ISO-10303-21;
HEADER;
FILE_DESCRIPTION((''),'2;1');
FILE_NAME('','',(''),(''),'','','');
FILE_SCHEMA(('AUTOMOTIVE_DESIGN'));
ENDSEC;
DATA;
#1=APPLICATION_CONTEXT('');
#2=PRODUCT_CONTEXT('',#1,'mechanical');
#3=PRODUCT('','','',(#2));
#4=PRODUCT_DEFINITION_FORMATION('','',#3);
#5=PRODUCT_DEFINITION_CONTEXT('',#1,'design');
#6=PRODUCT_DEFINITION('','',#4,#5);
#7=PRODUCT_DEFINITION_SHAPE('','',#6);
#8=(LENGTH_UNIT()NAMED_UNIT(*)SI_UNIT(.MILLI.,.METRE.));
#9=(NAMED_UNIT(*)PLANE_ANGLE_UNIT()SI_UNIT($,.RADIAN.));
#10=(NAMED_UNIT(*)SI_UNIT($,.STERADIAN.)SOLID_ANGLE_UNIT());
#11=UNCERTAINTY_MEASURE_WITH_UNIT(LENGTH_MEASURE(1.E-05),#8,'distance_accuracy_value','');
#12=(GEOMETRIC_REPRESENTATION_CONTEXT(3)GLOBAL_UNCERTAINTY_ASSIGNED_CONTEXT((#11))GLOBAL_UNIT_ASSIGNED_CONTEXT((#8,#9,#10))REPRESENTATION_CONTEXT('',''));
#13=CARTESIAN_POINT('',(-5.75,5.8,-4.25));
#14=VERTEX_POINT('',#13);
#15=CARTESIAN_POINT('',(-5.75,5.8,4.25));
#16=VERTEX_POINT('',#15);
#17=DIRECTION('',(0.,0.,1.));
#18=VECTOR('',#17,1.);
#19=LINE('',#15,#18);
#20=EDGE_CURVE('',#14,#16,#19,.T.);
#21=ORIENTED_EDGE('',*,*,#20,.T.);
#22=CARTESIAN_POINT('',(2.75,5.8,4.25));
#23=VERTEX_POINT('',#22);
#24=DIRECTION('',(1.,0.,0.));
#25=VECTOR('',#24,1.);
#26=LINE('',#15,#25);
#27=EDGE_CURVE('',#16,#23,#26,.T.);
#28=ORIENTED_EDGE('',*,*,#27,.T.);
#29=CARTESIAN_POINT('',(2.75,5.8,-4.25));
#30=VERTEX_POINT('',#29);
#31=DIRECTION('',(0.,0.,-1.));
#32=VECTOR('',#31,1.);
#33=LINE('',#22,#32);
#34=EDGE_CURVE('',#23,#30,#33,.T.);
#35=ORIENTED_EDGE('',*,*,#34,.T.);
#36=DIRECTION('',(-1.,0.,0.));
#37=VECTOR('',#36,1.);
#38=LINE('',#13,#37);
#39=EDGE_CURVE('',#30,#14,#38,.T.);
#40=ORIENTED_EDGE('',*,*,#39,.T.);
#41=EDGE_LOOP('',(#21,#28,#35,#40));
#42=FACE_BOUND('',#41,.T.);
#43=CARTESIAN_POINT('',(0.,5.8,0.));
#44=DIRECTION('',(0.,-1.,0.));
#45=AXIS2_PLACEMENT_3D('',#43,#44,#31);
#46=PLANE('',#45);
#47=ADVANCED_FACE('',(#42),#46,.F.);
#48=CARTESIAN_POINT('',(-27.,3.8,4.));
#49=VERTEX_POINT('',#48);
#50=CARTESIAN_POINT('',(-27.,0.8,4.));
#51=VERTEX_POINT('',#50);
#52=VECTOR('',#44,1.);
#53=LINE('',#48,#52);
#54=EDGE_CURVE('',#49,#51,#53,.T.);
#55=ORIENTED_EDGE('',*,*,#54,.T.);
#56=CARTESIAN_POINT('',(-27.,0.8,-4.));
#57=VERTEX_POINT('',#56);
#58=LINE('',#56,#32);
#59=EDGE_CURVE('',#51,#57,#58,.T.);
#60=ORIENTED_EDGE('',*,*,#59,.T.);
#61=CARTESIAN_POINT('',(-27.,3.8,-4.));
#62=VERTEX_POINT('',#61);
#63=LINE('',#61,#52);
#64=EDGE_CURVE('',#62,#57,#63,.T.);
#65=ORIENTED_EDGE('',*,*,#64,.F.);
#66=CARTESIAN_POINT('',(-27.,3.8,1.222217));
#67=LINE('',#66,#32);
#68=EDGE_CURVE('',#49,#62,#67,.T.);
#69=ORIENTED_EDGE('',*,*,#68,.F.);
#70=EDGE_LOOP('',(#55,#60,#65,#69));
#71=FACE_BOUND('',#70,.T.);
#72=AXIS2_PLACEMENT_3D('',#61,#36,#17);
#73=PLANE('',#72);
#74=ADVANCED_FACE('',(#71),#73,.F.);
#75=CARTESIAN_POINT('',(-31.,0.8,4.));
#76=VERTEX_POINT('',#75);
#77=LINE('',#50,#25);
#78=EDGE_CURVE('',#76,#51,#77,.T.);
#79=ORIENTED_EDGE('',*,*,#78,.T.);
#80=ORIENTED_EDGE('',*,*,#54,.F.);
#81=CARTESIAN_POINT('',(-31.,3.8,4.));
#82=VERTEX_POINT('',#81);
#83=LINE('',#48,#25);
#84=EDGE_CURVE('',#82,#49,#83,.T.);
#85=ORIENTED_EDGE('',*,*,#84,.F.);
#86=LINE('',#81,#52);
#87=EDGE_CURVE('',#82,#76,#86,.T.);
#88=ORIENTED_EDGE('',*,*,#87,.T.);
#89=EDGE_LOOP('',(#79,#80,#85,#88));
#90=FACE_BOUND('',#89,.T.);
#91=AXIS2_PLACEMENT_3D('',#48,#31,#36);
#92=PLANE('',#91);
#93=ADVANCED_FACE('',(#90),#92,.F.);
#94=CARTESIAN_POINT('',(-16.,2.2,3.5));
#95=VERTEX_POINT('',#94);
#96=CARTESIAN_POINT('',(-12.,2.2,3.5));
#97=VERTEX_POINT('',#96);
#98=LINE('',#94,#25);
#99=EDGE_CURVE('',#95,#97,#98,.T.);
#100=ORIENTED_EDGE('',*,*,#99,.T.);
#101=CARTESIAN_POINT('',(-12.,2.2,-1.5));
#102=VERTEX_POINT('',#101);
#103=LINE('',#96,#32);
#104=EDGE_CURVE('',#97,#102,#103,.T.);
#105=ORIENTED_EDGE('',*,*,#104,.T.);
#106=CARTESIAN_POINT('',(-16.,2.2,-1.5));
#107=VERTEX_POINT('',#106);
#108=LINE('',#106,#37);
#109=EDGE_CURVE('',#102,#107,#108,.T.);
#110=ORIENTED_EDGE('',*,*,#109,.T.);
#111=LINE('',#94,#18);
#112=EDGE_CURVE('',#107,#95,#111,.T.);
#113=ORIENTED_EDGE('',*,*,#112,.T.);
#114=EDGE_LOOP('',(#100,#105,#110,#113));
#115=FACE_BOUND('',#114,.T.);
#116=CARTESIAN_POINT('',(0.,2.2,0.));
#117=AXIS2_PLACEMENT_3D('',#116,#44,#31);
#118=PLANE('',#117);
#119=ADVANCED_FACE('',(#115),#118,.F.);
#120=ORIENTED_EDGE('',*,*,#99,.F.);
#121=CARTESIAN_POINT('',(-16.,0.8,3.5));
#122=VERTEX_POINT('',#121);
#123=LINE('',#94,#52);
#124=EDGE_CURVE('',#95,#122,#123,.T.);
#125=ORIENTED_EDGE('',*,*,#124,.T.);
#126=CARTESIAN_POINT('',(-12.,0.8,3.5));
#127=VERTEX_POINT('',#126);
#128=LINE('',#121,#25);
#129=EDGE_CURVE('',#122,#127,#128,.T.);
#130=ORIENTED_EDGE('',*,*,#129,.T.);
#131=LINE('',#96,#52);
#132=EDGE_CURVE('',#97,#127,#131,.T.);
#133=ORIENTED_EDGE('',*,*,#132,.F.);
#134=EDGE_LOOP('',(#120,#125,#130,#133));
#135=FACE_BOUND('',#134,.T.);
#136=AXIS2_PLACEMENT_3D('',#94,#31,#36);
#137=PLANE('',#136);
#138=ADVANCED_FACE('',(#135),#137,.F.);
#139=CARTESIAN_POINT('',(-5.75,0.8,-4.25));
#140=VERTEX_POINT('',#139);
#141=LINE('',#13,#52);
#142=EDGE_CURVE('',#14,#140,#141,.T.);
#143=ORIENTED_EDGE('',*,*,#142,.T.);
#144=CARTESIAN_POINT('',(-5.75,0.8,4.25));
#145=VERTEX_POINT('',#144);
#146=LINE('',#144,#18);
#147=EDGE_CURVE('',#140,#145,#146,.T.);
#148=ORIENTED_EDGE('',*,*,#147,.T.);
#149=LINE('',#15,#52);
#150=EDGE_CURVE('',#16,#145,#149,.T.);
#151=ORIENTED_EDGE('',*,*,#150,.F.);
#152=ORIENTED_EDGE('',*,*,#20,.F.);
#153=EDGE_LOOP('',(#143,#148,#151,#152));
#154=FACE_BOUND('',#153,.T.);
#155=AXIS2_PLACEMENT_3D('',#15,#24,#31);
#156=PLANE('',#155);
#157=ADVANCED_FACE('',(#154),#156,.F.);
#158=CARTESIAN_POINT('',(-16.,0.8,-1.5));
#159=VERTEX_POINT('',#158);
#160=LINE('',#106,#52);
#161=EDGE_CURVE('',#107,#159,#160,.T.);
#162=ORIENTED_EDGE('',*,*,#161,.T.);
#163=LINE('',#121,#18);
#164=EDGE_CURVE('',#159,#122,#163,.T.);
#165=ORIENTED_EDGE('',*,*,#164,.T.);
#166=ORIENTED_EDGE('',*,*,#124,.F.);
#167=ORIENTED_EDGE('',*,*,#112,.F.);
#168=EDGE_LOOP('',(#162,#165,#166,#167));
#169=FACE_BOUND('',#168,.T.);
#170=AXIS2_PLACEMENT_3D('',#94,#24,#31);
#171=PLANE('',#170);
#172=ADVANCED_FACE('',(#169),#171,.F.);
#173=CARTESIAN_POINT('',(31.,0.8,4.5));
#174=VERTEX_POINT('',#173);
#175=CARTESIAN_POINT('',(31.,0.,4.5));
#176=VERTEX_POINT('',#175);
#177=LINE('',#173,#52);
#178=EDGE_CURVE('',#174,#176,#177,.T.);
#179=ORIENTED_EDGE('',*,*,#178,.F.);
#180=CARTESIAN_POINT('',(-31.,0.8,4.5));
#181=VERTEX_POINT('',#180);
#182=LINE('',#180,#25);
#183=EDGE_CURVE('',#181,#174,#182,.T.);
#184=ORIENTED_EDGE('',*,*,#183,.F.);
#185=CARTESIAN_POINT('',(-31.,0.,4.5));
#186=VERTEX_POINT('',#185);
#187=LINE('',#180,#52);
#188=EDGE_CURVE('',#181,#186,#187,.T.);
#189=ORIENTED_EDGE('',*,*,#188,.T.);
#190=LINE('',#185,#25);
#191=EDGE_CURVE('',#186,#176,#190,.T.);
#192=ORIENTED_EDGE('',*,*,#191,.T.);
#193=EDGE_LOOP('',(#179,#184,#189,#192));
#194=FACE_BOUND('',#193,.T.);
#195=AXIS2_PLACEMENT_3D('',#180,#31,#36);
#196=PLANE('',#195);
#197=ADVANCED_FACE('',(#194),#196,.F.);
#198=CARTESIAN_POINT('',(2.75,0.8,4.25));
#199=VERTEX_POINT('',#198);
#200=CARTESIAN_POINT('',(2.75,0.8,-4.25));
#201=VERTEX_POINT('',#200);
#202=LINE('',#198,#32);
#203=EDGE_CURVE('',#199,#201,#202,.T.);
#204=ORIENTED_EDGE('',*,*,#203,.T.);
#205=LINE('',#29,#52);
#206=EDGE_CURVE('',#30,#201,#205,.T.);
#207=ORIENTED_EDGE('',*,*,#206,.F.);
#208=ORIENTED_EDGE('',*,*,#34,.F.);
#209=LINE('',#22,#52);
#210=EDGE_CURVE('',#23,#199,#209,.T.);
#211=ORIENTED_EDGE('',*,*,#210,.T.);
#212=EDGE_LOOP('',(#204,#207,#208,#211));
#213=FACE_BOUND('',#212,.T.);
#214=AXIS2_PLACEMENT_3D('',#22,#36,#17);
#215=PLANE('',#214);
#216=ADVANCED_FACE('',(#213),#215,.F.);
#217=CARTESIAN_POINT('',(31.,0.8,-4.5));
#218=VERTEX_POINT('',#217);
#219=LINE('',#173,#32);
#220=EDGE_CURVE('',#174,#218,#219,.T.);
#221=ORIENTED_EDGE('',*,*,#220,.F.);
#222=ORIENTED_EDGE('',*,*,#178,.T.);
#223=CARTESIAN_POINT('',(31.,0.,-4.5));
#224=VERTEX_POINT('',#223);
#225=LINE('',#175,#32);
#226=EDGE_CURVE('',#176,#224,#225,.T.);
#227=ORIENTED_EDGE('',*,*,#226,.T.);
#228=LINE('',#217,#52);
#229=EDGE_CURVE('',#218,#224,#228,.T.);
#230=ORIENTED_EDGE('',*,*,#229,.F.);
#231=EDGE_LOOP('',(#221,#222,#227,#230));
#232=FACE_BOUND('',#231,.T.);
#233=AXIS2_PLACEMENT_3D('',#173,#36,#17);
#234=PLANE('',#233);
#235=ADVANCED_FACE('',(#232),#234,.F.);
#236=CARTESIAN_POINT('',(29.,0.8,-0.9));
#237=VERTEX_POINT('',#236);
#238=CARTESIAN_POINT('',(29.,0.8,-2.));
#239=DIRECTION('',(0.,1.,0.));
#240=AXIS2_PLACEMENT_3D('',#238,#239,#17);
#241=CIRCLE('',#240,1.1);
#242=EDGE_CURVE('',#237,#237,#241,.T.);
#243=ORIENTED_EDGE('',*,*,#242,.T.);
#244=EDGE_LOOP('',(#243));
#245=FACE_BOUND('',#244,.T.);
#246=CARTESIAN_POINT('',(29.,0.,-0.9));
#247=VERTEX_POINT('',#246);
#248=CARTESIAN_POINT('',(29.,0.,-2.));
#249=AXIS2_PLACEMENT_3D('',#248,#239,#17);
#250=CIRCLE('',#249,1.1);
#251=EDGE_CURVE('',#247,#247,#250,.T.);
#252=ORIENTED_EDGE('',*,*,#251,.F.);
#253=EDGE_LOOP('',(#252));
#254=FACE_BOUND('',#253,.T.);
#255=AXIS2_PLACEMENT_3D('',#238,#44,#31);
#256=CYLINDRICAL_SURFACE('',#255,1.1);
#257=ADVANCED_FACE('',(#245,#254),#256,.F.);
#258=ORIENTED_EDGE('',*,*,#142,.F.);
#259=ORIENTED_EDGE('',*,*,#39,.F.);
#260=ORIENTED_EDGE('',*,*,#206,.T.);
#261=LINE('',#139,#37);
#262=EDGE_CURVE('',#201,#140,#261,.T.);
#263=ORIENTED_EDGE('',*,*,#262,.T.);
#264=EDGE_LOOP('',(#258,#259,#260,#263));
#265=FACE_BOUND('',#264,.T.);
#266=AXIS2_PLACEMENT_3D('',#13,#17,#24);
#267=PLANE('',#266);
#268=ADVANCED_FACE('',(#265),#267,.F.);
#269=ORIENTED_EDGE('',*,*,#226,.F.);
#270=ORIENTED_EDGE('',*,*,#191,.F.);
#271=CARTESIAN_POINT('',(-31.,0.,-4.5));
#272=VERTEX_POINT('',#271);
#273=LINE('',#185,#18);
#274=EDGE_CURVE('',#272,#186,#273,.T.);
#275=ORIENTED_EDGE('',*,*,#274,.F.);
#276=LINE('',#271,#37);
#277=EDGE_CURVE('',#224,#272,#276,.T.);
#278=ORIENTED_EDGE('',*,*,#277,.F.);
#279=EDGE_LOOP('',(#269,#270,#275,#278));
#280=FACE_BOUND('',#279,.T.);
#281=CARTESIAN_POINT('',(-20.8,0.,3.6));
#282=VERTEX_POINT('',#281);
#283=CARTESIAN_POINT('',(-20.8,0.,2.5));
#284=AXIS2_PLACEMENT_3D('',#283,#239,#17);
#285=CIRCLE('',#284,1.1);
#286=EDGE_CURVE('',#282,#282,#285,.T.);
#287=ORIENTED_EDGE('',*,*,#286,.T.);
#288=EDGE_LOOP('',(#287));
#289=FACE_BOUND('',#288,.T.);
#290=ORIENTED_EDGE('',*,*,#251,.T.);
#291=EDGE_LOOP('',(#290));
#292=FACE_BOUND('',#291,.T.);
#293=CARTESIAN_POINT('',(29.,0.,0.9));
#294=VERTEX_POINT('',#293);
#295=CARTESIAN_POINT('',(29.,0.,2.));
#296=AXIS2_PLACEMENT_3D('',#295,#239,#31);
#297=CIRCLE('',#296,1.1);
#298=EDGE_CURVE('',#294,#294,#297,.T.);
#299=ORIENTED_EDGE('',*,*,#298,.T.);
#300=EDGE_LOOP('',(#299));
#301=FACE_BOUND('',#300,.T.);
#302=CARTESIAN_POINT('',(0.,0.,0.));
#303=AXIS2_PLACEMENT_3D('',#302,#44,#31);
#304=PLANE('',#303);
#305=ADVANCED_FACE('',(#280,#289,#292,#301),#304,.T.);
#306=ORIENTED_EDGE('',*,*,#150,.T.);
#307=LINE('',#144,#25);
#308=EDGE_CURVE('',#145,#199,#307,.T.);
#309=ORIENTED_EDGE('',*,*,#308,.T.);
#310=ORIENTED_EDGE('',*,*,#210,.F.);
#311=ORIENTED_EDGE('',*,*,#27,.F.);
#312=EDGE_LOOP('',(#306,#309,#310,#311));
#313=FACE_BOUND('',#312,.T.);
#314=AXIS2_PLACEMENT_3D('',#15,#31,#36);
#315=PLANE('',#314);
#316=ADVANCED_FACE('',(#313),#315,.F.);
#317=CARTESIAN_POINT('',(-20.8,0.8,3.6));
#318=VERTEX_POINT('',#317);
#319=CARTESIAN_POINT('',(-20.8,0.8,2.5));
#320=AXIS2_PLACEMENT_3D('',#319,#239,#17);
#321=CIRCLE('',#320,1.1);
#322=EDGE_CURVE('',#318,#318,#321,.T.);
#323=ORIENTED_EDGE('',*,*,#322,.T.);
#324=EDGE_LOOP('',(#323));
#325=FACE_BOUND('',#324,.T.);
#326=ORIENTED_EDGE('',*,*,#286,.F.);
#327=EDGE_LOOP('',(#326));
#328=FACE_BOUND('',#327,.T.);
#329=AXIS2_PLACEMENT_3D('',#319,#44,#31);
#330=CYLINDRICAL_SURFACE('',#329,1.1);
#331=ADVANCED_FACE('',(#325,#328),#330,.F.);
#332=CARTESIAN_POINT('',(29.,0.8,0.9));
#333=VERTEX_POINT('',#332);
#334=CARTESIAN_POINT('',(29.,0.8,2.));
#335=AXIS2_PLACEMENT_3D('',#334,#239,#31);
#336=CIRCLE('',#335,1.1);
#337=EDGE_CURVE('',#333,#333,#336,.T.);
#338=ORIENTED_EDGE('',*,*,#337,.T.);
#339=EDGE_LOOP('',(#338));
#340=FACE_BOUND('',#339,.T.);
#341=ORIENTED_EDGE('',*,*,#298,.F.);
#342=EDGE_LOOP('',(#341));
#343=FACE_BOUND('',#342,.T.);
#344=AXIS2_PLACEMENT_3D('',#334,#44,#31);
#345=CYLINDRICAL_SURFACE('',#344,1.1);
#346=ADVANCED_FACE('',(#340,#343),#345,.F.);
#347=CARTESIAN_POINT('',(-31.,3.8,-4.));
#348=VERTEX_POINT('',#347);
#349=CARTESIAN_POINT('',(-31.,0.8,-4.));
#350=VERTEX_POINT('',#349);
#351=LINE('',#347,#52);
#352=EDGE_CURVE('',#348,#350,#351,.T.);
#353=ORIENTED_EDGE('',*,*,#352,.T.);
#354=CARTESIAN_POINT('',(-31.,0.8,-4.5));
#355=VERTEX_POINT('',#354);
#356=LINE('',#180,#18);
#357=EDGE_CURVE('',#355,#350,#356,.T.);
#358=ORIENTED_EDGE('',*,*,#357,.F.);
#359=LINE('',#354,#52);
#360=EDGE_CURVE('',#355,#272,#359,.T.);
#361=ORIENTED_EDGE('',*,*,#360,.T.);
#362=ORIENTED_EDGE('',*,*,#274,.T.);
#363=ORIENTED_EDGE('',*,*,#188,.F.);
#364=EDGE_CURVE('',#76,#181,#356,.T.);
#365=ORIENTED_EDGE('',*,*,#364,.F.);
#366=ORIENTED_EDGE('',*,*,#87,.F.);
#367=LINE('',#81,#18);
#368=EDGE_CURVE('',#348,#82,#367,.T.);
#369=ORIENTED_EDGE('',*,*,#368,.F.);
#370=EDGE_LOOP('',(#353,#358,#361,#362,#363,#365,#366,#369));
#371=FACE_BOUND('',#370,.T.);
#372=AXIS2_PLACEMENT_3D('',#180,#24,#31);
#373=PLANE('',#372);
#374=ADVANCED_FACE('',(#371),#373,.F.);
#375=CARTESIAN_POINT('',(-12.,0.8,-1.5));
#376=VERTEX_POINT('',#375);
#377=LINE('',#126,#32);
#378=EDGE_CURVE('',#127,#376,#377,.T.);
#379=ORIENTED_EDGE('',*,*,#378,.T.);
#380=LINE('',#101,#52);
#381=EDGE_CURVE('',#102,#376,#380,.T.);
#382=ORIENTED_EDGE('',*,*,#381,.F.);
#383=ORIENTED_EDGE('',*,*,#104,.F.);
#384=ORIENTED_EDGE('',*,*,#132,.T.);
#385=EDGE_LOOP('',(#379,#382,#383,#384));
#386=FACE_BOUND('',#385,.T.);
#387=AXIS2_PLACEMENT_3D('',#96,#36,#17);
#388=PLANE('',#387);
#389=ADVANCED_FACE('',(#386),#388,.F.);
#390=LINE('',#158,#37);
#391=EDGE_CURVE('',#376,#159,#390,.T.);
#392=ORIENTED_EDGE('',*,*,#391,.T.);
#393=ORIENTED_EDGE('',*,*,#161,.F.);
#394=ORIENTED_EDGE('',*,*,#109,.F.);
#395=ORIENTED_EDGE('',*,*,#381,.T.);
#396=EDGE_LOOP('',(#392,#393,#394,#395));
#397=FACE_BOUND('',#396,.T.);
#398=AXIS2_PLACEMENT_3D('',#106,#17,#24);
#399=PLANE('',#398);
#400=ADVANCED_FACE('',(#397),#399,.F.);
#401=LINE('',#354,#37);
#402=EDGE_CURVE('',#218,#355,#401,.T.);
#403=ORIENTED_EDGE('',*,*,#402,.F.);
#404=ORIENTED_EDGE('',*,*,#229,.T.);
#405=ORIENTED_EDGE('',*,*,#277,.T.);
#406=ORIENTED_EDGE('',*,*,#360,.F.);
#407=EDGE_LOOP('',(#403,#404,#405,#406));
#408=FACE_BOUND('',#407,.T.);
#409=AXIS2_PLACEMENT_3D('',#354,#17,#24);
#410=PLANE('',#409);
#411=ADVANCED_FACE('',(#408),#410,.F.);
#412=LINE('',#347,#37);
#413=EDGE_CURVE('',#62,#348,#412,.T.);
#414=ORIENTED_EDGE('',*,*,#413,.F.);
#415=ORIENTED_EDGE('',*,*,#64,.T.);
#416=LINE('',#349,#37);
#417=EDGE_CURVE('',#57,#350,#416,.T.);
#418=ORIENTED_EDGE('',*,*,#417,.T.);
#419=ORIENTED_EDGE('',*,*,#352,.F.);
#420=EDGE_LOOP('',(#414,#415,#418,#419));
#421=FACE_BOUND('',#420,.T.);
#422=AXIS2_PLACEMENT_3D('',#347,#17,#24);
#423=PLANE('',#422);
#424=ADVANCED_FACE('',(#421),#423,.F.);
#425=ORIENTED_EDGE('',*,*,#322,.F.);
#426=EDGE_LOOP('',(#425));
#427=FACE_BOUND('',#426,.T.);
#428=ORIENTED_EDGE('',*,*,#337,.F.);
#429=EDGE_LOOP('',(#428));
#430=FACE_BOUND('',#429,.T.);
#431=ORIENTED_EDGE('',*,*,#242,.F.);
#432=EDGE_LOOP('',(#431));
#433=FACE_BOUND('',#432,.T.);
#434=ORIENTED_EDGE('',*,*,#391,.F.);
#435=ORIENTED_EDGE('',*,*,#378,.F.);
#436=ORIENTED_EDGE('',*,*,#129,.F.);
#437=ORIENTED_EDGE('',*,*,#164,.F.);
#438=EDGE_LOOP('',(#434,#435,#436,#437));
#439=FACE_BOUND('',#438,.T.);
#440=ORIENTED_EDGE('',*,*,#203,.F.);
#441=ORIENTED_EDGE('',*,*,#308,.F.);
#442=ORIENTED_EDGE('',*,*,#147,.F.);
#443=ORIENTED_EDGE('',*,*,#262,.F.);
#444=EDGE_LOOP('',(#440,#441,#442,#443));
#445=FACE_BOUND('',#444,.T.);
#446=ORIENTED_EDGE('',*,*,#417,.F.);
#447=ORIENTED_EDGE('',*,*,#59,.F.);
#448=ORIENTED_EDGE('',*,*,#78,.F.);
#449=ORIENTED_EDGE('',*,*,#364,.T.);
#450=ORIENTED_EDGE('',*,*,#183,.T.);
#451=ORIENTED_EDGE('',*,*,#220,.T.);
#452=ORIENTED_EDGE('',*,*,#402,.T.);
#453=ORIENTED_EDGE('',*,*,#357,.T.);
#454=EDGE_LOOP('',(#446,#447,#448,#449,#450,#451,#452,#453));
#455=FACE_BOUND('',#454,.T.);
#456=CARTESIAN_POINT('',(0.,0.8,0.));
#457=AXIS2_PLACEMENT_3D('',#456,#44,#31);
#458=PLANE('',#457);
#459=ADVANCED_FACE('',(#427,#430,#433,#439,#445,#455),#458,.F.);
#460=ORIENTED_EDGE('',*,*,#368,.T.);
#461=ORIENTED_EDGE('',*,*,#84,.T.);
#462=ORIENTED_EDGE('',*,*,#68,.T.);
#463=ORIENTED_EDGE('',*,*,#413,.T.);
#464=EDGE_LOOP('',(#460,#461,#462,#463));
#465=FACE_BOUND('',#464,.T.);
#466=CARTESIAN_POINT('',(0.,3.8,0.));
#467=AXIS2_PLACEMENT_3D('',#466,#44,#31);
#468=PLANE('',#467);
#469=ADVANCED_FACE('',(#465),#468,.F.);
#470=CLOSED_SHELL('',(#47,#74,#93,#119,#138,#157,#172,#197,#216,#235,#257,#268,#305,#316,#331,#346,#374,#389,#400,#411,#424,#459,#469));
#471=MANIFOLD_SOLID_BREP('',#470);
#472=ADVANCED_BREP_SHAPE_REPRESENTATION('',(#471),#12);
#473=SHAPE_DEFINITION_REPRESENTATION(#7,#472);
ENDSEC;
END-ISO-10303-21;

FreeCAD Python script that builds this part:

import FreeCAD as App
import Part
import Sketcher

V = App.Vector
Q = App.Units.Quantity


def add_polygon(sketch, points):
    """Adds a closed chain of lines whose ends are joined by coincident constraints."""
    first, n = sketch.GeometryCount, len(points)
    for a, b in zip(points, points[1:] + points[:1]):
        sketch.addGeometry(Part.LineSegment(App.Vector(*a, 0), App.Vector(*b, 0)), False)
    for i in range(n):
        sketch.addConstraint(Sketcher.Constraint("Coincident", first + i, 2, first + (i + 1) % n, 1))

doc = App.newDocument("Part")
body = doc.addObject("PartDesign::Body", "Body")

sketch1 = body.newObject("Sketcher::SketchObject", "Sketch")
sketch1.AttachmentSupport = (doc.getObject("XZ_Plane"), [""])
sketch1.MapMode = "FlatFace"
add_polygon(sketch1, [(-31, -4.5), (-31, 4.5), (31, 4.5), (31, -4.5)])
sketch1.addGeometry(Part.Circle(V(-20.8, 2.5, 0), V(0, 0, 1), 1.1), False)
sketch1.addGeometry(Part.Circle(V(29, 2, 0), V(0, 0, 1), 1.1), False)
sketch1.addGeometry(Part.Circle(V(29, -2, 0), V(0, 0, 1), 1.1), False)
sketch1.addConstraint(Sketcher.Constraint("Vertical", 0))
sketch1.addConstraint(Sketcher.Constraint("Horizontal", 1))
sketch1.addConstraint(Sketcher.Constraint("Vertical", 2))
sketch1.addConstraint(Sketcher.Constraint("Horizontal", 3))
sketch1.addConstraint(Sketcher.Constraint("Equal", 4, 5))
sketch1.addConstraint(Sketcher.Constraint("Equal", 5, 6))
sketch1.addConstraint(Sketcher.Constraint("Symmetric", 0, 2, 2, 2, -1, 1))
sketch1.addConstraint(Sketcher.Constraint("Symmetric", 5, 3, 6, 3, -1))
sketch1.addConstraint(Sketcher.Constraint("Diameter", 4, Q("2.2 mm")))
sketch1.addConstraint(Sketcher.Constraint("DistanceX", 1, 1, 1, 2, Q("62 mm")))
sketch1.addConstraint(Sketcher.Constraint("DistanceY", 0, 1, 0, 2, Q("9 mm")))
sketch1.addConstraint(Sketcher.Constraint("DistanceX", -1, 1, 5, 3, Q("29 mm")))
sketch1.addConstraint(Sketcher.Constraint("DistanceY", -1, 1, 5, 3, Q("2 mm")))
sketch1.addConstraint(Sketcher.Constraint("DistanceY", 4, 3, 0, 2, Q("2 mm")))
sketch1.addConstraint(Sketcher.Constraint("DistanceX", 4, 3, -1, 1, Q("20.8 mm")))
pad1 = body.newObject("PartDesign::Pad", "Pad")
pad1.Profile = sketch1
pad1.Length = 0.8
pad1.Reversed = True

sketch2 = body.newObject("Sketcher::SketchObject", "Sketch001")
sketch2.AttachmentSupport = (doc.getObject("XZ_Plane"), [""])
sketch2.MapMode = "FlatFace"
sketch2.AttachmentOffset = App.Placement(V(0, 0, -0.8), App.Rotation())
add_polygon(sketch2, [(-6, -4), (-6, 4), (3, 4), (3, -4)])
sketch2.addConstraint(Sketcher.Constraint("Vertical", 0))
sketch2.addConstraint(Sketcher.Constraint("Horizontal", 1))
sketch2.addConstraint(Sketcher.Constraint("Vertical", 2))
sketch2.addConstraint(Sketcher.Constraint("Horizontal", 3))
sketch2.addConstraint(Sketcher.Constraint("Equal", 3, 0))
sketch2.addConstraint(Sketcher.Constraint("DistanceX", 1, 1, 1, 2, Q("8.5 mm")))
sketch2.addConstraint(Sketcher.Constraint("DistanceX", 0, 2, -1, 1, Q("5.75 mm")))
sketch2.addConstraint(Sketcher.Constraint("DistanceY", -1, 1, 0, 2, Q("4.25 mm")))
pad2 = body.newObject("PartDesign::Pad", "Pad001")
pad2.Profile = sketch2
pad2.Length = 5
pad2.Reversed = True

sketch3 = body.newObject("Sketcher::SketchObject", "Sketch002")
sketch3.AttachmentSupport = (doc.getObject("XZ_Plane"), [""])
sketch3.MapMode = "FlatFace"
sketch3.AttachmentOffset = App.Placement(V(0, 0, -0.8), App.Rotation())
add_polygon(sketch3, [(-31, -4), (-31, 4), (-27, 4), (-27, -4)])
sketch3.addConstraint(Sketcher.Constraint("Vertical", 0))
sketch3.addConstraint(Sketcher.Constraint("Horizontal", 1))
sketch3.addConstraint(Sketcher.Constraint("Vertical", 2))
sketch3.addConstraint(Sketcher.Constraint("Horizontal", 3))
sketch3.addConstraint(Sketcher.Constraint("DistanceX", 1, 1, 1, 2, Q("4 mm")))
sketch3.addConstraint(Sketcher.Constraint("DistanceY", 0, 1, 0, 2, Q("8 mm")))
sketch3.addConstraint(Sketcher.Constraint("DistanceX", 0, 2, -1, 1, Q("31 mm")))
sketch3.addConstraint(Sketcher.Constraint("DistanceY", -1, 1, 0, 2, Q("4 mm")))
pad3 = body.newObject("PartDesign::Pad", "Pad002")
pad3.Profile = sketch3
pad3.Length = 3
pad3.Reversed = True

sketch4 = body.newObject("Sketcher::SketchObject", "Sketch003")
sketch4.AttachmentSupport = (doc.getObject("XZ_Plane"), [""])
sketch4.MapMode = "FlatFace"
sketch4.AttachmentOffset = App.Placement(V(0, 0, -0.8), App.Rotation())
add_polygon(sketch4, [(-16, -1.5), (-16, 3.5), (-12, 3.5), (-12, -1.5)])
sketch4.addConstraint(Sketcher.Constraint("Vertical", 0))
sketch4.addConstraint(Sketcher.Constraint("Horizontal", 1))
sketch4.addConstraint(Sketcher.Constraint("Vertical", 2))
sketch4.addConstraint(Sketcher.Constraint("Horizontal", 3))
sketch4.addConstraint(Sketcher.Constraint("DistanceX", 1, 1, 1, 2, Q("4 mm")))
sketch4.addConstraint(Sketcher.Constraint("DistanceY", 0, 1, 0, 2, Q("5 mm")))
sketch4.addConstraint(Sketcher.Constraint("DistanceX", 0, 2, -1, 1, Q("16 mm")))
sketch4.addConstraint(Sketcher.Constraint("DistanceY", -1, 1, 0, 2, Q("3.5 mm")))
pad4 = body.newObject("PartDesign::Pad", "Pad003")
pad4.Profile = sketch4
pad4.Length = 1.4
pad4.Reversed = True

doc.recompute()
